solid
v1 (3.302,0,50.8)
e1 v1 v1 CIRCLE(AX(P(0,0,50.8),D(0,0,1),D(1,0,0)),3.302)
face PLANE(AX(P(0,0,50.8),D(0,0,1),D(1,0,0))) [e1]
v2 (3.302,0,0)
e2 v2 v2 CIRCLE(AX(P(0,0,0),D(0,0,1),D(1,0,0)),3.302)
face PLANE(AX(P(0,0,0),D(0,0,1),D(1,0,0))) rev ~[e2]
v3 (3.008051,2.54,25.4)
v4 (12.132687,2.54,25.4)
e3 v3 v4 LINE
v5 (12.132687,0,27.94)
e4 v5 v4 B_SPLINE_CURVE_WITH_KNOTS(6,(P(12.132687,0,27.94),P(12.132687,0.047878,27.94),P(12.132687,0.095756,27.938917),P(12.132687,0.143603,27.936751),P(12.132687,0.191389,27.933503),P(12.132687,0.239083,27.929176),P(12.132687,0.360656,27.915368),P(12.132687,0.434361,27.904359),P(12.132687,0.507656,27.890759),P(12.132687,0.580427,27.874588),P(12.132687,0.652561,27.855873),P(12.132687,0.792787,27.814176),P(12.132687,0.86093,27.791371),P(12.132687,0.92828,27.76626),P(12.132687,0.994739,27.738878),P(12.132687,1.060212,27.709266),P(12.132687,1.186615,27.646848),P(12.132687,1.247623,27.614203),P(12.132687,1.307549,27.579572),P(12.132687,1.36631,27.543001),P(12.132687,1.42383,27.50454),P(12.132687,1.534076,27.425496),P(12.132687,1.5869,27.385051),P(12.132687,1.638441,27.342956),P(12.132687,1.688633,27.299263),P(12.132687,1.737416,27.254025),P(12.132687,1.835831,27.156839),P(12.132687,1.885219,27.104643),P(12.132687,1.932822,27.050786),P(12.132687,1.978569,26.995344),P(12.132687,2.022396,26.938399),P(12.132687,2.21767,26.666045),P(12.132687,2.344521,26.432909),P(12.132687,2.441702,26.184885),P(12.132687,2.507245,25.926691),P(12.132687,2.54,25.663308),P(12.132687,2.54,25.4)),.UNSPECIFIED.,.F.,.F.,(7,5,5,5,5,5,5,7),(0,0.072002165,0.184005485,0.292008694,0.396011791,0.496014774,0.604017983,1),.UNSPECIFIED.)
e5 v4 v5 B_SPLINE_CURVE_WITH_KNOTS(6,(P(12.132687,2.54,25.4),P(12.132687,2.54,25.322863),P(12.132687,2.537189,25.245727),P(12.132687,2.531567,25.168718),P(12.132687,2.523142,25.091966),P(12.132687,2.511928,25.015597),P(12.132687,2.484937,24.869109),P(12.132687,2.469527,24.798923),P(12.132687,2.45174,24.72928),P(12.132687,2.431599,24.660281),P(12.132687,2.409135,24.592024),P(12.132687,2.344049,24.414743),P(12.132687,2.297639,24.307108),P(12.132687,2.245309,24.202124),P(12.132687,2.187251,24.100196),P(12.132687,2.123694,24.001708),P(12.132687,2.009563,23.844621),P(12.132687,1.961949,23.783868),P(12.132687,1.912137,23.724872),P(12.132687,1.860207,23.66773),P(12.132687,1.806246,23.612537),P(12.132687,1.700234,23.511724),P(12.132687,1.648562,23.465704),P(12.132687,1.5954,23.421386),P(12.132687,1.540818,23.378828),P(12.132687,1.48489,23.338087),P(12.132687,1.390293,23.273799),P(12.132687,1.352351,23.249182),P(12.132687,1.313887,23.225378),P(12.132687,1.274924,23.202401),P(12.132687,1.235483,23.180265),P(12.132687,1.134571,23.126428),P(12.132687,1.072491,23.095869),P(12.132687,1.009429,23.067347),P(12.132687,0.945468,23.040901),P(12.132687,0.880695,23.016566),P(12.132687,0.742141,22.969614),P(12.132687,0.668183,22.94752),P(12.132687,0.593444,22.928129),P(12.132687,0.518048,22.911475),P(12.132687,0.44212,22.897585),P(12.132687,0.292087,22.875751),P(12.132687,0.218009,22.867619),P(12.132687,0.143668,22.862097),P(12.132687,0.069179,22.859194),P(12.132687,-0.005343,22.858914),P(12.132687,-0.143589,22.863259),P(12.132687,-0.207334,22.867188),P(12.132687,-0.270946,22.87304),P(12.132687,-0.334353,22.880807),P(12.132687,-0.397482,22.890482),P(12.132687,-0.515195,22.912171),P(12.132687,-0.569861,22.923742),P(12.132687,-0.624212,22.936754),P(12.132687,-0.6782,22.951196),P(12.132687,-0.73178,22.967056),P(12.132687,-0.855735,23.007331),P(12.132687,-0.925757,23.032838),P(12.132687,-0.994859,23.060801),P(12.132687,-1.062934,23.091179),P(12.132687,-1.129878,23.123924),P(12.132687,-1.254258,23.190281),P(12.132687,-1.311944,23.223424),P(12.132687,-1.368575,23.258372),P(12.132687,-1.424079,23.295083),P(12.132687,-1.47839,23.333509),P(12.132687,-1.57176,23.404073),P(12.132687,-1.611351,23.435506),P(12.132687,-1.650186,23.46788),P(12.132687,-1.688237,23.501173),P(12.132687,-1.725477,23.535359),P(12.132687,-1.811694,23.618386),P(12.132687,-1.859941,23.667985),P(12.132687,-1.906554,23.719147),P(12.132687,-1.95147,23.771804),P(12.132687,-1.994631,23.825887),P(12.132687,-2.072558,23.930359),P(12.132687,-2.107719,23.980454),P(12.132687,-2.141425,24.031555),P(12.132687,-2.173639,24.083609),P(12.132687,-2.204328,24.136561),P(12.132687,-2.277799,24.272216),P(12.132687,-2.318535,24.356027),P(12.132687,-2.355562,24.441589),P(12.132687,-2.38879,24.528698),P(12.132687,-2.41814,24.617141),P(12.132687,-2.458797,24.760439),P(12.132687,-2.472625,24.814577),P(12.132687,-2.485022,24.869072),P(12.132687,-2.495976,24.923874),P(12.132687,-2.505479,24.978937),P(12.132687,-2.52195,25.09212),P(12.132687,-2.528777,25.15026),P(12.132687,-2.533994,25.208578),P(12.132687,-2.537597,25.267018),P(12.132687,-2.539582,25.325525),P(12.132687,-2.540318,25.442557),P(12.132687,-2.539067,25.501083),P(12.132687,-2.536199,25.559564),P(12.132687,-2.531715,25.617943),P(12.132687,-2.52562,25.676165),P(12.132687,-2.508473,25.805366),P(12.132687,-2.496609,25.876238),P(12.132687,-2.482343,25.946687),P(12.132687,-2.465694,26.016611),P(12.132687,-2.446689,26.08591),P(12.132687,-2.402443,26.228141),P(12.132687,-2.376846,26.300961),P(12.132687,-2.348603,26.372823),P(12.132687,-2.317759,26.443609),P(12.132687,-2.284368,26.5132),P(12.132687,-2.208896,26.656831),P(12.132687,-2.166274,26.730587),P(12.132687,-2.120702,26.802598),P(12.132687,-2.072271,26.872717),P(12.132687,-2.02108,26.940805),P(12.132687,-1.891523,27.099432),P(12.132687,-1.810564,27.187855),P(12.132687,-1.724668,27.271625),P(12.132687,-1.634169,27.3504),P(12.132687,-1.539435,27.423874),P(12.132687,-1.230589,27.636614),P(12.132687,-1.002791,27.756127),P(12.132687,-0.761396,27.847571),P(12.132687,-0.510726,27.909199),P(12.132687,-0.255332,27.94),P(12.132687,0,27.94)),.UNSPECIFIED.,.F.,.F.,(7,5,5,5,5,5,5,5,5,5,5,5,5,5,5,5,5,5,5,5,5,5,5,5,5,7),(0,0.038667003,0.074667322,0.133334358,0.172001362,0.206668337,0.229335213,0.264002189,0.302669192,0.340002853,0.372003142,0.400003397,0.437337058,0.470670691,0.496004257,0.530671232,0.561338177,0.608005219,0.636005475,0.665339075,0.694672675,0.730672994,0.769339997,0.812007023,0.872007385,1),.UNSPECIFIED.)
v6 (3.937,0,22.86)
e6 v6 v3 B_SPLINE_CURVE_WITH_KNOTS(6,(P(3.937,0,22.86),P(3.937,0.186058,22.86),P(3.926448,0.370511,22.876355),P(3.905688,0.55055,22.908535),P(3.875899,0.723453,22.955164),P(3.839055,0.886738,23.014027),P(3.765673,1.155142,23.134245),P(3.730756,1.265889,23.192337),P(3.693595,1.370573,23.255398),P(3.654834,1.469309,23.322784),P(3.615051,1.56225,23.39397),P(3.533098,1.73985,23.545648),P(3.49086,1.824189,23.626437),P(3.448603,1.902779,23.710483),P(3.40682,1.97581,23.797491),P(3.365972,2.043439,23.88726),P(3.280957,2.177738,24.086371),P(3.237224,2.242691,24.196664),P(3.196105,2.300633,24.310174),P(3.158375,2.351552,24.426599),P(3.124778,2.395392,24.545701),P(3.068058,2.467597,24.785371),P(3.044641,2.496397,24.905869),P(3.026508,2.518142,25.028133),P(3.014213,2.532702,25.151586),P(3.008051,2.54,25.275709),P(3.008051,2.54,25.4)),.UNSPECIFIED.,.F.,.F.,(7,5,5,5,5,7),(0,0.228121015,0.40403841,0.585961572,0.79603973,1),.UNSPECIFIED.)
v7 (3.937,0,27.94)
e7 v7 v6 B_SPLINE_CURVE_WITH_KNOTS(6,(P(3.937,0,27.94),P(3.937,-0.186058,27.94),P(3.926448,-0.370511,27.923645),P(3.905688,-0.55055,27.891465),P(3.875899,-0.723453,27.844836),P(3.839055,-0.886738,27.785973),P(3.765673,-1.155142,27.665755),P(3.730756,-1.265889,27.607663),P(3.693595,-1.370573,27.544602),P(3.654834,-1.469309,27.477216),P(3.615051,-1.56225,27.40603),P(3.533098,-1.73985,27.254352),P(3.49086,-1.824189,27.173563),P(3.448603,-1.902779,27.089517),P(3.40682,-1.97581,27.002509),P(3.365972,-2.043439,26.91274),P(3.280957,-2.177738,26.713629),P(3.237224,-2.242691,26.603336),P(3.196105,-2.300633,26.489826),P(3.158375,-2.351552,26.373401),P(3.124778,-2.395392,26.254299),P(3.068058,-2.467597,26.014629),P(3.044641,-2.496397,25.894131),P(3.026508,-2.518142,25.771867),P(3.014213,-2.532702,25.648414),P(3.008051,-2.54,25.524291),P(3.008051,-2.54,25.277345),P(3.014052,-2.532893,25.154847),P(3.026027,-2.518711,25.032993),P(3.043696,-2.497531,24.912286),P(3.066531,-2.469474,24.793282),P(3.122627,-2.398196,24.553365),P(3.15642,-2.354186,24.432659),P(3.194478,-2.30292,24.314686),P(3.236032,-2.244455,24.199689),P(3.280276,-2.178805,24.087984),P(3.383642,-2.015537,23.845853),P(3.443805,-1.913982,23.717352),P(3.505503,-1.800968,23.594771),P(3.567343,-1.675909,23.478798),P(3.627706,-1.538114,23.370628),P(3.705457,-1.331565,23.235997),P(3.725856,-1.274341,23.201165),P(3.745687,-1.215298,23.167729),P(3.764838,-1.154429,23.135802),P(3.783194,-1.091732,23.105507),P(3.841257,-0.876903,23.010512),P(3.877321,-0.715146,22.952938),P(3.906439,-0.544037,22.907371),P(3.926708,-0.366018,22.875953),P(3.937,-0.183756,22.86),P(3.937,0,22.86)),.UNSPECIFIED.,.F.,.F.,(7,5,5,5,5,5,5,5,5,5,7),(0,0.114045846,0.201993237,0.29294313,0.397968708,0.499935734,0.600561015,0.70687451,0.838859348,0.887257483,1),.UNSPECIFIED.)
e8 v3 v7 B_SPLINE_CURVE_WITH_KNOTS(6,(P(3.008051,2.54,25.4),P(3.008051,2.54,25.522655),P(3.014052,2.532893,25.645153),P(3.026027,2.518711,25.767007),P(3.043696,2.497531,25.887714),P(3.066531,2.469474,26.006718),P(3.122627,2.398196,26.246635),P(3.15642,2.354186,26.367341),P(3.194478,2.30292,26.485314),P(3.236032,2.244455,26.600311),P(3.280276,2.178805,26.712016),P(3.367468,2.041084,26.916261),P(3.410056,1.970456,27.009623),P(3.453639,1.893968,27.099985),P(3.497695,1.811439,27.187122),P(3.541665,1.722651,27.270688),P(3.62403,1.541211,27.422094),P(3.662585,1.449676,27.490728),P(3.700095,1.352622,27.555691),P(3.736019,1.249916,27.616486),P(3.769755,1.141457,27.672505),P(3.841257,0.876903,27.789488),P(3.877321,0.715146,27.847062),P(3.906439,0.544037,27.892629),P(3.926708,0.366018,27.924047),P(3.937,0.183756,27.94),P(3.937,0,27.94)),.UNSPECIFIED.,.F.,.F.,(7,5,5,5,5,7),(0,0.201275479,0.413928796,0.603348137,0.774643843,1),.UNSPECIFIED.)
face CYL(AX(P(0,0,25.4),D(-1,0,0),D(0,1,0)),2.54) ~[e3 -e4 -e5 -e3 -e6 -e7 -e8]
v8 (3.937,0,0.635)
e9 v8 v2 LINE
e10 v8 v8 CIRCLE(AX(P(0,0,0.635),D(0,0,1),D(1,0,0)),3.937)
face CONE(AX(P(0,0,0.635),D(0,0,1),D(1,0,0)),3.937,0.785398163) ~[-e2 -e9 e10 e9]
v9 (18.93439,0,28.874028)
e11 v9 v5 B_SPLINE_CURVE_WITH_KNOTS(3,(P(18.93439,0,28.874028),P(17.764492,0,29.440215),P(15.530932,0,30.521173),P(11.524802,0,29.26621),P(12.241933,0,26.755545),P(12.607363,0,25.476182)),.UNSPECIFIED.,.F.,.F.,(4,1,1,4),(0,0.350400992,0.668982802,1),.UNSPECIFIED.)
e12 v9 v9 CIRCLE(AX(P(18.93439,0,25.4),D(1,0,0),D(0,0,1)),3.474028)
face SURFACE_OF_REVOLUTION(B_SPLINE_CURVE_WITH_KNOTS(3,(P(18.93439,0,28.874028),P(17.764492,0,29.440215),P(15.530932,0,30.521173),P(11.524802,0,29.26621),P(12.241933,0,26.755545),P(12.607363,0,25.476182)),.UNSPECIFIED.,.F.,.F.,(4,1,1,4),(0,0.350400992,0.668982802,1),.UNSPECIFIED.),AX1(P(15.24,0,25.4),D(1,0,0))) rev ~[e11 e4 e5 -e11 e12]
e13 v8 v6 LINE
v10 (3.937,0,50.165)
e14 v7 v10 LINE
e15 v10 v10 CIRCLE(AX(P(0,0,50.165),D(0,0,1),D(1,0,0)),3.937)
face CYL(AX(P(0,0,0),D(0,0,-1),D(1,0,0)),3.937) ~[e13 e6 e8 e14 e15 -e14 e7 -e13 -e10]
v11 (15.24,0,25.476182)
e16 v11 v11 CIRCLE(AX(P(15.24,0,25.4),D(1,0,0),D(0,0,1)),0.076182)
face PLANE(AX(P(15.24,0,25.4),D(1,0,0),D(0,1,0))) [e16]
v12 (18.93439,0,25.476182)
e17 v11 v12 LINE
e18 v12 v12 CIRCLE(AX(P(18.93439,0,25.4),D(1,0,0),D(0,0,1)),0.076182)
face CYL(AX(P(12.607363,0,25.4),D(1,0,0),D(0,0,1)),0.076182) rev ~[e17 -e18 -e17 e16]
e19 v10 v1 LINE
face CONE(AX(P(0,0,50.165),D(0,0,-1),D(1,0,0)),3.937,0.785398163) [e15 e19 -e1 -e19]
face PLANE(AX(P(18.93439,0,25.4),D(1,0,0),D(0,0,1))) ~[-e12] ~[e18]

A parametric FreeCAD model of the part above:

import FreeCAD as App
import Part
import Sketcher
Q = App.Units.Quantity


def edges_at(feature, points):
    """Names of the edges that pass closest to the given points."""
    edges = feature.Shape.Edges
    near = lambda p: min(range(len(edges)), key=lambda i: edges[i].distToShape(Part.Vertex(*p))[0])
    return sorted({f"Edge{near(p) + 1}" for p in points})

doc = App.newDocument("Part")
body = doc.addObject("PartDesign::Body", "Body")

# Sketch on XY plane
sketch1 = body.newObject("Sketcher::SketchObject", "Sketch")
sketch1.AttachmentSupport = (doc.getObject("XY_Plane"), [""])
sketch1.MapMode = "FlatFace"
sketch1.addGeometry(Part.Circle(App.Vector(0, 0, 0), App.Vector(0, 0, 1), 3.9), False)
sketch1.addConstraint([
    Sketcher.Constraint("Coincident", 0, 3, -1, 1),
    Sketcher.Constraint("Diameter", 0, Q("0.31 in")),
])
pad1 = body.newObject("PartDesign::Pad", "Pad")
pad1.Profile = sketch1
pad1.Length = Q("2 in")

# Sketch on YZ plane
sketch2 = body.newObject("Sketcher::SketchObject", "Sketch001")
sketch2.AttachmentSupport = (doc.getObject("YZ_Plane"), [""])
sketch2.MapMode = "FlatFace"
sketch2.addGeometry(Part.Circle(App.Vector(0, 25.4, 0), App.Vector(0, 0, 1), 2.5), False)
sketch2.addConstraint([
    Sketcher.Constraint("PointOnObject", 0, 3, -2),
    Sketcher.Constraint("Diameter", 0, Q("0.2 in")),
    Sketcher.Constraint("DistanceY", -1, 1, 0, 3, Q("1 in")),
])
pad2 = body.newObject("PartDesign::Pad", "Pad001")
pad2.Profile = sketch2
pad2.Length = Q("0.6 in")

# Sketch on XZ plane
sketch3 = body.newObject("Sketcher::SketchObject", "Sketch002")
sketch3.AttachmentSupport = (doc.getObject("XZ_Plane"), [""])
sketch3.MapMode = "FlatFace"
sketch3.addGeometry([
    Part.BSplineCurve([App.Vector(18.93439, 28.874028, 0), App.Vector(17.764492, 29.440215, 0), App.Vector(15.530932, 30.521173, 0), App.Vector(11.524802, 29.26621, 0), App.Vector(12.241933, 26.755545, 0), App.Vector(12.607363, 25.476182, 0)], [4, 1, 1, 4], [0, 0.350400992, 0.668982802, 1], False, 3, [1, 1, 1, 1, 1, 1], False),
    Part.LineSegment(App.Vector(12.607363, 25.476182, 0), App.Vector(18.93439, 25.476182, 0)),
    Part.LineSegment(App.Vector(18.93439, 25.476182, 0), App.Vector(18.93439, 28.874028, 0)),
], False)
sketch3.addGeometry(Part.LineSegment(App.Vector(12.607363, 25.4, 0), App.Vector(18.93439, 25.4, 0)), True)  # axis
sketch3.addConstraint([
    Sketcher.Constraint("Block", 0),
    Sketcher.Constraint("Coincident", 0, 2, 1, 1),
    Sketcher.Constraint("Coincident", 1, 2, 2, 1),
    Sketcher.Constraint("Coincident", 2, 2, 0, 1),
    Sketcher.Constraint("Horizontal", 1),
    Sketcher.Constraint("Vertical", 2),
    Sketcher.Constraint("Horizontal", 3),
    Sketcher.Constraint("Vertical", 2, 2, 3, 2),
    Sketcher.Constraint("Equal", 1, 3),
    Sketcher.Constraint("DistanceY", -1, 1, 3, 1, Q("1 in")),
])
revolution = body.newObject("PartDesign::Revolution", "Revolution")
revolution.Profile = sketch3
revolution.ReferenceAxis = (sketch3, ["Axis0"])
revolution.Angle = 360
doc.recompute()

chamfer = body.newObject("PartDesign::Chamfer", "Chamfer")
chamfer.Base = (revolution, edges_at(revolution, [(-3.937, 0, 50.8), (-3.937, 0, 0)]))
chamfer.Size = Q("0.025 in")

doc.recompute()
